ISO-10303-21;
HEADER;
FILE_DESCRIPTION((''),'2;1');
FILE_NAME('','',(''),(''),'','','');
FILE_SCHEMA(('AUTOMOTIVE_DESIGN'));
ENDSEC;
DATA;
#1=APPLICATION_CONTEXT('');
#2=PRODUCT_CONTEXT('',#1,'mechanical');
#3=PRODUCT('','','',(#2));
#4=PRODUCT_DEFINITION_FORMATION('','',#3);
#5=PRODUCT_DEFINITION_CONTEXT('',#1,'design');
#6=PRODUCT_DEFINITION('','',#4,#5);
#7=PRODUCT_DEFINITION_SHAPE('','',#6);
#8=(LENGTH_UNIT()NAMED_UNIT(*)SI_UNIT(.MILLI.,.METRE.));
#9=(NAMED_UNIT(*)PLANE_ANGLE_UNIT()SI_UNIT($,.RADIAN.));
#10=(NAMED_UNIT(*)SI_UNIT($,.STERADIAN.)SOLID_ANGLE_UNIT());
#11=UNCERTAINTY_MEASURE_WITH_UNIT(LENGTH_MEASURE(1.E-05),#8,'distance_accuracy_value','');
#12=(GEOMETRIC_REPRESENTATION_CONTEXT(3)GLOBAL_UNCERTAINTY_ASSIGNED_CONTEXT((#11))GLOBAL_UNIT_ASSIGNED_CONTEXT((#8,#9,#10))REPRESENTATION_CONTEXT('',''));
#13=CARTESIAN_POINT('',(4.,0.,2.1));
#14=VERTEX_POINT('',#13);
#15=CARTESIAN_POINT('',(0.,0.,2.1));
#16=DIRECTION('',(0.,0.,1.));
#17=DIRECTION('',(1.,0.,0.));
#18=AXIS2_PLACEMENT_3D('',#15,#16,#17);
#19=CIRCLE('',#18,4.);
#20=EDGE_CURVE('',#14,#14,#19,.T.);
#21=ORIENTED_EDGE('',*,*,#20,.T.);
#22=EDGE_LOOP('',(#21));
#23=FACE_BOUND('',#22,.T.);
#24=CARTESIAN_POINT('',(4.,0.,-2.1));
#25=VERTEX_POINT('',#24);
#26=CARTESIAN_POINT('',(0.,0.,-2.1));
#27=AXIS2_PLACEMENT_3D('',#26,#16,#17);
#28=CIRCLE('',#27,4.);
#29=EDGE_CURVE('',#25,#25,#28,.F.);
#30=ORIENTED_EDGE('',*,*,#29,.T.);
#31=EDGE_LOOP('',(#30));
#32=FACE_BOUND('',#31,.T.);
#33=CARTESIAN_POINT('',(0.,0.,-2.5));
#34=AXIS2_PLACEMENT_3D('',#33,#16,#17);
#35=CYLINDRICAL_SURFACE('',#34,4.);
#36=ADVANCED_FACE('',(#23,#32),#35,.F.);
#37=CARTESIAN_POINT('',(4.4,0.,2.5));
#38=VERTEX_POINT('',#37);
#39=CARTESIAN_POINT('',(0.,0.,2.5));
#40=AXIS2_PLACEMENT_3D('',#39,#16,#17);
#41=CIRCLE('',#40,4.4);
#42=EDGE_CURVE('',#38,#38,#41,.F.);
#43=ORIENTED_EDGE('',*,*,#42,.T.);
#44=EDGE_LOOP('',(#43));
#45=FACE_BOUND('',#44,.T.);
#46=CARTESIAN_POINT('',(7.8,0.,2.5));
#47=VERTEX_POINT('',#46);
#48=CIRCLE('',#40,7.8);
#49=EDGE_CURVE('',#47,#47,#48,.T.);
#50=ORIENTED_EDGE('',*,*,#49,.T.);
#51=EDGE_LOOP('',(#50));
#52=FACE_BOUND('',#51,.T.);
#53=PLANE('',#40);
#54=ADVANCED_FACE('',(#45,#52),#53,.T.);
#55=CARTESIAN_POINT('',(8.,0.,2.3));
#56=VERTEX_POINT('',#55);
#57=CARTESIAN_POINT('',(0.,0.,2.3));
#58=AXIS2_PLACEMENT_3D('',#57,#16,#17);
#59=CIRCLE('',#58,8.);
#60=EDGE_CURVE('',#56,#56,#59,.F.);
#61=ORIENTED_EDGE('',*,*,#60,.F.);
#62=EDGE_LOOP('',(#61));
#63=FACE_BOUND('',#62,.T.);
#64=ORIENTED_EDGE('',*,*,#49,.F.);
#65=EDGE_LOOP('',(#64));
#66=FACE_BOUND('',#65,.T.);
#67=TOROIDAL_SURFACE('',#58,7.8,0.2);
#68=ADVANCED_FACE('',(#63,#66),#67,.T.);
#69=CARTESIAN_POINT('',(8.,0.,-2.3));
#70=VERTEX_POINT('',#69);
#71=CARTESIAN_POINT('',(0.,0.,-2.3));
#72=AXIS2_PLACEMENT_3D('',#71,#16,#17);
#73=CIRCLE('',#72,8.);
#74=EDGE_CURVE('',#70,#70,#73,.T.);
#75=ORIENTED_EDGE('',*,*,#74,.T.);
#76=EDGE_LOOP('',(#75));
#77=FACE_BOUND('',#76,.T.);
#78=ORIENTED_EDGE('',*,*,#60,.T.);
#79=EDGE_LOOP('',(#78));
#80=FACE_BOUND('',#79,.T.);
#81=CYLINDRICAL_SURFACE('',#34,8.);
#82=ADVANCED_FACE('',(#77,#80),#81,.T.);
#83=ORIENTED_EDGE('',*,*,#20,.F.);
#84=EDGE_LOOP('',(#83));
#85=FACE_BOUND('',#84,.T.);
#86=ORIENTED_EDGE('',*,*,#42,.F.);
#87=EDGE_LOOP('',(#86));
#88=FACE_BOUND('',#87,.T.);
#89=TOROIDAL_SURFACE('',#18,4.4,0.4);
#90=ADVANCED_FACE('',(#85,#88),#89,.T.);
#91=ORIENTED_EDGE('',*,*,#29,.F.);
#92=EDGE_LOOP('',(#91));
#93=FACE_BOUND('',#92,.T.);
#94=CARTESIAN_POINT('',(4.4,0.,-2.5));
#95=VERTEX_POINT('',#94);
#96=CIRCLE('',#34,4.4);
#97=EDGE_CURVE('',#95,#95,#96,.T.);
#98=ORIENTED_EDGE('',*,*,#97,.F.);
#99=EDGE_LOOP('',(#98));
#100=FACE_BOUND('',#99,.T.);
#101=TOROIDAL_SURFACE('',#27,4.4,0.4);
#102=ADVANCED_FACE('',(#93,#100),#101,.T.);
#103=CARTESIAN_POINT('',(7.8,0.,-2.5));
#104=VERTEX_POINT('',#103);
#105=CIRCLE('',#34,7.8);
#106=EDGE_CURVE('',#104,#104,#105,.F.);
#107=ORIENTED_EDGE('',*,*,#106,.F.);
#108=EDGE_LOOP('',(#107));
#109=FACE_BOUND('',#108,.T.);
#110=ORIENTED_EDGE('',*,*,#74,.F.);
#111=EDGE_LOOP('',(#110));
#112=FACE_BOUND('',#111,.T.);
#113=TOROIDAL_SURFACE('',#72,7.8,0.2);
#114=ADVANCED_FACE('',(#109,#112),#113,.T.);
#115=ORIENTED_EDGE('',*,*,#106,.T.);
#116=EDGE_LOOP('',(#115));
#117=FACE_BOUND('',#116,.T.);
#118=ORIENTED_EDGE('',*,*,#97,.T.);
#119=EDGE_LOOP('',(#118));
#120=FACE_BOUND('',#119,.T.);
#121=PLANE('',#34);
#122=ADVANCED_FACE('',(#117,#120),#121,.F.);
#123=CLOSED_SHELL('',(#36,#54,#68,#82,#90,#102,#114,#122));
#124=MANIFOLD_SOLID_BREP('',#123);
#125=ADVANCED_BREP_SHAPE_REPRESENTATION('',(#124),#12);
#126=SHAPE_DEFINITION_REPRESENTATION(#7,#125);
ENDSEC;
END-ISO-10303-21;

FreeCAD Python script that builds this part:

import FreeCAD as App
import Part
import Sketcher

V = App.Vector
Q = App.Units.Quantity


def edges_at(feature, points):
    """Names of the edges that pass closest to the given points."""
    edges = feature.Shape.Edges
    near = lambda p: min(range(len(edges)), key=lambda i: edges[i].distToShape(Part.Vertex(*p))[0])
    return sorted({f"Edge{near(p) + 1}" for p in points})

doc = App.newDocument("Part")
params = doc.addObject("Spreadsheet::Sheet", "Params")
for row, (alias, value) in enumerate([
    ("sketch1_diameter", "16 mm"),
    ("sketch1_diameter2", "8 mm"),
    ("pad1_length", "2.5 mm"),
    ("pad1_length2", "2.5 mm"),
    ("fillet_radius", "0.2 mm"),
    ("fillet2_radius", "0.4 mm"),
], start=1):
    params.set(f"A{row}", alias)
    params.set(f"B{row}", "=" + value)
    params.setAlias(f"B{row}", alias)

body = doc.addObject("PartDesign::Body", "Body")

sketch1 = body.newObject("Sketcher::SketchObject", "Sketch")
sketch1.AttachmentSupport = (doc.getObject("XY_Plane"), [""])
sketch1.MapMode = "FlatFace"
sketch1.addGeometry([
    Part.Circle(V(0, 0, 0), V(0, 0, 1), 8),
    Part.Circle(V(0, 0, 0), V(0, 0, 1), 4),
], False)
sketch1.addConstraint([
    Sketcher.Constraint("Coincident", 0, 3, -1, 1),
    Sketcher.Constraint("Coincident", 1, 3, -1, 1),
    Sketcher.Constraint("Diameter", 0, Q("16 mm")),
    Sketcher.Constraint("Diameter", 1, Q("8 mm")),
])
sketch1.setExpression("Constraints[2]", "Params.sketch1_diameter")
sketch1.setExpression("Constraints[3]", "Params.sketch1_diameter2")
pad1 = body.newObject("PartDesign::Pad", "Pad")
pad1.Profile = sketch1
pad1.Type = "TwoLengths"
pad1.setExpression("Length", "Params.pad1_length")
pad1.setExpression("Length2", "Params.pad1_length2")
doc.recompute()

fillet = body.newObject("PartDesign::Fillet", "Fillet")
fillet.Base = (pad1, edges_at(pad1, [(-8, 0, -2.5), (-8, 0, 2.5)]))
fillet.setExpression("Radius", "Params.fillet_radius")
doc.recompute()

fillet2 = body.newObject("PartDesign::Fillet", "Fillet001")
fillet2.Base = (fillet, edges_at(fillet, [(-4, 0, -2.5), (-4, 0, 2.5)]))
fillet2.setExpression("Radius", "Params.fillet2_radius")

doc.recompute()
